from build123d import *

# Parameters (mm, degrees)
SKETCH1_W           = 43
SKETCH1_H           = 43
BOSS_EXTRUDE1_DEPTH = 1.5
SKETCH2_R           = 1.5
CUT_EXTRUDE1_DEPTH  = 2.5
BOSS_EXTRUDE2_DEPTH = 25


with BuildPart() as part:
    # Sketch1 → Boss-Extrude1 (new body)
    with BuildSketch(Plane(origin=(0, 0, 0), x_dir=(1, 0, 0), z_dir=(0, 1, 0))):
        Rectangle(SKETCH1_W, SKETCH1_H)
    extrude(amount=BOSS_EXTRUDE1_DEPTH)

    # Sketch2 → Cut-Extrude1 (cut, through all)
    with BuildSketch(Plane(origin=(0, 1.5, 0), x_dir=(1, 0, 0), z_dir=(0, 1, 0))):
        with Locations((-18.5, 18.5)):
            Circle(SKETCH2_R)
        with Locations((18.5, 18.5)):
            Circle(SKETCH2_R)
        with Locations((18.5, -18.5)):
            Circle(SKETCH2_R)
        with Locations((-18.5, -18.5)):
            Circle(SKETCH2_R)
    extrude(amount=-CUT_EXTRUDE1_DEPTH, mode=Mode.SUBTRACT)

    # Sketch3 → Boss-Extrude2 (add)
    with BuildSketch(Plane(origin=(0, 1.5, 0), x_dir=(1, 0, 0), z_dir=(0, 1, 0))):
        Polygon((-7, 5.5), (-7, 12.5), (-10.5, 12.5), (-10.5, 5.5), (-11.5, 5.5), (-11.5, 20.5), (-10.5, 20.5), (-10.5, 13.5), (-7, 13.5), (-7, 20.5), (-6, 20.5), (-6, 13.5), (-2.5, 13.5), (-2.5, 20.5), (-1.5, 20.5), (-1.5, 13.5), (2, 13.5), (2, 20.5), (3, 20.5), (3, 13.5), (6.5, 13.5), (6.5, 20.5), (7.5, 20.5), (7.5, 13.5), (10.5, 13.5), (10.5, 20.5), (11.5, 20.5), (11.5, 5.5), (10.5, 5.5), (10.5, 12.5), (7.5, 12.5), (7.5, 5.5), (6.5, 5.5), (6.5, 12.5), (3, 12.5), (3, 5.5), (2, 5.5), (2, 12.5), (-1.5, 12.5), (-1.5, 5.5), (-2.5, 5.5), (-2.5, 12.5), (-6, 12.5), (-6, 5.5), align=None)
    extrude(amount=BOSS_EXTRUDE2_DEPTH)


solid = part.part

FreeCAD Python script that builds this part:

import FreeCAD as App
import Part
import Sketcher

V = App.Vector

doc = App.newDocument("Part")
body = doc.addObject("PartDesign::Body", "Body")

sketch1 = body.newObject("Sketcher::SketchObject", "Sketch")
sketch1.AttachmentSupport = (doc.getObject("XZ_Plane"), [""])
sketch1.MapMode = "FlatFace"
sketch1.addGeometry(Part.LineSegment(V(-21.5, -21.5, 0), V(-21.5, 21.5, 0)), False)
sketch1.addGeometry(Part.LineSegment(V(-21.5, 21.5, 0), V(21.5, 21.5, 0)), False)
sketch1.addGeometry(Part.LineSegment(V(21.5, 21.5, 0), V(21.5, -21.5, 0)), False)
sketch1.addGeometry(Part.LineSegment(V(21.5, -21.5, 0), V(-21.5, -21.5, 0)), False)
sketch1.addConstraint(Sketcher.Constraint("Coincident", 0, 2, 1, 1))
sketch1.addConstraint(Sketcher.Constraint("Coincident", 1, 2, 2, 1))
sketch1.addConstraint(Sketcher.Constraint("Coincident", 2, 2, 3, 1))
sketch1.addConstraint(Sketcher.Constraint("Coincident", 3, 2, 0, 1))
sketch1.addConstraint(Sketcher.Constraint("Vertical", 0))
sketch1.addConstraint(Sketcher.Constraint("Horizontal", 1))
sketch1.addConstraint(Sketcher.Constraint("Vertical", 2))
sketch1.addConstraint(Sketcher.Constraint("Horizontal", 3))
sketch1.addConstraint(Sketcher.Constraint("Symmetric", 0, 2, 2, 2, -1, 1))
sketch1.addConstraint(Sketcher.Constraint("Equal", 3, 0))
sketch1.addConstraint(Sketcher.Constraint("DistanceX", 1, 1, 1, 2, 43.0))
pad1 = body.newObject("PartDesign::Pad", "Pad")
pad1.Profile = sketch1
pad1.Length = 1.5
pad1.Reversed = True

sketch2 = body.newObject("Sketcher::SketchObject", "Sketch001")
sketch2.AttachmentSupport = (doc.getObject("XZ_Plane"), [""])
sketch2.MapMode = "FlatFace"
sketch2.AttachmentOffset = App.Placement(V(0, 0, -1.5), App.Rotation())
sketch2.addGeometry(Part.Circle(V(-18.5, -18.5, 0), V(0, 0, 1), 1.5), False)
sketch2.addGeometry(Part.Circle(V(18.5, -18.5, 0), V(0, 0, 1), 1.5), False)
sketch2.addGeometry(Part.Circle(V(18.5, 18.5, 0), V(0, 0, 1), 1.5), False)
sketch2.addGeometry(Part.Circle(V(-18.5, 18.5, 0), V(0, 0, 1), 1.5), False)
sketch2.addConstraint(Sketcher.Constraint("Equal", 0, 1))
sketch2.addConstraint(Sketcher.Constraint("Equal", 1, 2))
sketch2.addConstraint(Sketcher.Constraint("Equal", 2, 3))
sketch2.addConstraint(Sketcher.Constraint("Symmetric", 0, 3, 2, 3, -1, 1))
sketch2.addConstraint(Sketcher.Constraint("Symmetric", 1, 3, 3, 3, -1, 1))
sketch2.addConstraint(Sketcher.Constraint("Symmetric", 0, 3, 1, 3, -2))
sketch2.addConstraint(Sketcher.Constraint("Diameter", 0, 3.0))
sketch2.addConstraint(Sketcher.Constraint("DistanceX", 0, 3, 1, 3, 37.0))
sketch2.addConstraint(Sketcher.Constraint("DistanceY", 1, 3, 2, 3, 37.0))
pocket1 = body.newObject("PartDesign::Pocket", "Pocket")
pocket1.Profile = sketch2
pocket1.Type = "ThroughAll"
pocket1.Reversed = True

sketch3 = body.newObject("Sketcher::SketchObject", "Sketch002")
sketch3.AttachmentSupport = (doc.getObject("XZ_Plane"), [""])
sketch3.MapMode = "FlatFace"
sketch3.AttachmentOffset = App.Placement(V(0, 0, -1.5), App.Rotation())
sketch3.addGeometry(Part.LineSegment(V(-7, -12.5, 0), V(-7, -5.5, 0)), False)
sketch3.addGeometry(Part.LineSegment(V(-7, -5.5, 0), V(-6, -5.5, 0)), False)
sketch3.addGeometry(Part.LineSegment(V(-6, -5.5, 0), V(-6, -12.5, 0)), False)
sketch3.addGeometry(Part.LineSegment(V(-6, -12.5, 0), V(-2.5, -12.5, 0)), False)
sketch3.addGeometry(Part.LineSegment(V(-2.5, -12.5, 0), V(-2.5, -5.5, 0)), False)
sketch3.addGeometry(Part.LineSegment(V(-2.5, -5.5, 0), V(-1.5, -5.5, 0)), False)
sketch3.addGeometry(Part.LineSegment(V(-1.5, -5.5, 0), V(-1.5, -12.5, 0)), False)
sketch3.addGeometry(Part.LineSegment(V(-1.5, -12.5, 0), V(2, -12.5, 0)), False)
sketch3.addGeometry(Part.LineSegment(V(2, -12.5, 0), V(2, -5.5, 0)), False)
sketch3.addGeometry(Part.LineSegment(V(2, -5.5, 0), V(3, -5.5, 0)), False)
sketch3.addGeometry(Part.LineSegment(V(3, -5.5, 0), V(3, -12.5, 0)), False)
sketch3.addGeometry(Part.LineSegment(V(3, -12.5, 0), V(6.5, -12.5, 0)), False)
sketch3.addGeometry(Part.LineSegment(V(6.5, -12.5, 0), V(6.5, -5.5, 0)), False)
sketch3.addGeometry(Part.LineSegment(V(6.5, -5.5, 0), V(7.5, -5.5, 0)), False)
sketch3.addGeometry(Part.LineSegment(V(7.5, -5.5, 0), V(7.5, -12.5, 0)), False)
sketch3.addGeometry(Part.LineSegment(V(7.5, -12.5, 0), V(10.5, -12.5, 0)), False)
sketch3.addGeometry(Part.LineSegment(V(10.5, -12.5, 0), V(10.5, -5.5, 0)), False)
sketch3.addGeometry(Part.LineSegment(V(10.5, -5.5, 0), V(11.5, -5.5, 0)), False)
sketch3.addGeometry(Part.LineSegment(V(11.5, -5.5, 0), V(11.5, -20.5, 0)), False)
sketch3.addGeometry(Part.LineSegment(V(11.5, -20.5, 0), V(10.5, -20.5, 0)), False)
sketch3.addGeometry(Part.LineSegment(V(10.5, -20.5, 0), V(10.5, -13.5, 0)), False)
sketch3.addGeometry(Part.LineSegment(V(10.5, -13.5, 0), V(7.5, -13.5, 0)), False)
sketch3.addGeometry(Part.LineSegment(V(7.5, -13.5, 0), V(7.5, -20.5, 0)), False)
sketch3.addGeometry(Part.LineSegment(V(7.5, -20.5, 0), V(6.5, -20.5, 0)), False)
sketch3.addGeometry(Part.LineSegment(V(6.5, -20.5, 0), V(6.5, -13.5, 0)), False)
sketch3.addGeometry(Part.LineSegment(V(6.5, -13.5, 0), V(3, -13.5, 0)), False)
sketch3.addGeometry(Part.LineSegment(V(3, -13.5, 0), V(3, -20.5, 0)), False)
sketch3.addGeometry(Part.LineSegment(V(3, -20.5, 0), V(2, -20.5, 0)), False)
sketch3.addGeometry(Part.LineSegment(V(2, -20.5, 0), V(2, -13.5, 0)), False)
sketch3.addGeometry(Part.LineSegment(V(2, -13.5, 0), V(-1.5, -13.5, 0)), False)
sketch3.addGeometry(Part.LineSegment(V(-1.5, -13.5, 0), V(-1.5, -20.5, 0)), False)
sketch3.addGeometry(Part.LineSegment(V(-1.5, -20.5, 0), V(-2.5, -20.5, 0)), False)
sketch3.addGeometry(Part.LineSegment(V(-2.5, -20.5, 0), V(-2.5, -13.5, 0)), False)
sketch3.addGeometry(Part.LineSegment(V(-2.5, -13.5, 0), V(-6, -13.5, 0)), False)
sketch3.addGeometry(Part.LineSegment(V(-6, -13.5, 0), V(-6, -20.5, 0)), False)
sketch3.addGeometry(Part.LineSegment(V(-6, -20.5, 0), V(-7, -20.5, 0)), False)
sketch3.addGeometry(Part.LineSegment(V(-7, -20.5, 0), V(-7, -13.5, 0)), False)
sketch3.addGeometry(Part.LineSegment(V(-7, -13.5, 0), V(-10.5, -13.5, 0)), False)
sketch3.addGeometry(Part.LineSegment(V(-10.5, -13.5, 0), V(-10.5, -20.5, 0)), False)
sketch3.addGeometry(Part.LineSegment(V(-10.5, -20.5, 0), V(-11.5, -20.5, 0)), False)
sketch3.addGeometry(Part.LineSegment(V(-11.5, -20.5, 0), V(-11.5, -5.5, 0)), False)
sketch3.addGeometry(Part.LineSegment(V(-11.5, -5.5, 0), V(-10.5, -5.5, 0)), False)
sketch3.addGeometry(Part.LineSegment(V(-10.5, -5.5, 0), V(-10.5, -12.5, 0)), False)
sketch3.addGeometry(Part.LineSegment(V(-10.5, -12.5, 0), V(-7, -12.5, 0)), False)
sketch3.addConstraint(Sketcher.Constraint("Coincident", 0, 2, 1, 1))
sketch3.addConstraint(Sketcher.Constraint("Coincident", 1, 2, 2, 1))
sketch3.addConstraint(Sketcher.Constraint("Coincident", 2, 2, 3, 1))
sketch3.addConstraint(Sketcher.Constraint("Coincident", 3, 2, 4, 1))
sketch3.addConstraint(Sketcher.Constraint("Coincident", 4, 2, 5, 1))
sketch3.addConstraint(Sketcher.Constraint("Coincident", 5, 2, 6, 1))
sketch3.addConstraint(Sketcher.Constraint("Coincident", 6, 2, 7, 1))
sketch3.addConstraint(Sketcher.Constraint("Coincident", 7, 2, 8, 1))
sketch3.addConstraint(Sketcher.Constraint("Coincident", 8, 2, 9, 1))
sketch3.addConstraint(Sketcher.Constraint("Coincident", 9, 2, 10, 1))
sketch3.addConstraint(Sketcher.Constraint("Coincident", 10, 2, 11, 1))
sketch3.addConstraint(Sketcher.Constraint("Coincident", 11, 2, 12, 1))
sketch3.addConstraint(Sketcher.Constraint("Coincident", 12, 2, 13, 1))
sketch3.addConstraint(Sketcher.Constraint("Coincident", 13, 2, 14, 1))
sketch3.addConstraint(Sketcher.Constraint("Coincident", 14, 2, 15, 1))
sketch3.addConstraint(Sketcher.Constraint("Coincident", 15, 2, 16, 1))
sketch3.addConstraint(Sketcher.Constraint("Coincident", 16, 2, 17, 1))
sketch3.addConstraint(Sketcher.Constraint("Coincident", 17, 2, 18, 1))
sketch3.addConstraint(Sketcher.Constraint("Coincident", 18, 2, 19, 1))
sketch3.addConstraint(Sketcher.Constraint("Coincident", 19, 2, 20, 1))
sketch3.addConstraint(Sketcher.Constraint("Coincident", 20, 2, 21, 1))
sketch3.addConstraint(Sketcher.Constraint("Coincident", 21, 2, 22, 1))
sketch3.addConstraint(Sketcher.Constraint("Coincident", 22, 2, 23, 1))
sketch3.addConstraint(Sketcher.Constraint("Coincident", 23, 2, 24, 1))
sketch3.addConstraint(Sketcher.Constraint("Coincident", 24, 2, 25, 1))
sketch3.addConstraint(Sketcher.Constraint("Coincident", 25, 2, 26, 1))
sketch3.addConstraint(Sketcher.Constraint("Coincident", 26, 2, 27, 1))
sketch3.addConstraint(Sketcher.Constraint("Coincident", 27, 2, 28, 1))
sketch3.addConstraint(Sketcher.Constraint("Coincident", 28, 2, 29, 1))
sketch3.addConstraint(Sketcher.Constraint("Coincident", 29, 2, 30, 1))
sketch3.addConstraint(Sketcher.Constraint("Coincident", 30, 2, 31, 1))
sketch3.addConstraint(Sketcher.Constraint("Coincident", 31, 2, 32, 1))
sketch3.addConstraint(Sketcher.Constraint("Coincident", 32, 2, 33, 1))
sketch3.addConstraint(Sketcher.Constraint("Coincident", 33, 2, 34, 1))
sketch3.addConstraint(Sketcher.Constraint("Coincident", 34, 2, 35, 1))
sketch3.addConstraint(Sketcher.Constraint("Coincident", 35, 2, 36, 1))
sketch3.addConstraint(Sketcher.Constraint("Coincident", 36, 2, 37, 1))
sketch3.addConstraint(Sketcher.Constraint("Coincident", 37, 2, 38, 1))
sketch3.addConstraint(Sketcher.Constraint("Coincident", 38, 2, 39, 1))
sketch3.addConstraint(Sketcher.Constraint("Coincident", 39, 2, 40, 1))
sketch3.addConstraint(Sketcher.Constraint("Coincident", 40, 2, 41, 1))
sketch3.addConstraint(Sketcher.Constraint("Coincident", 41, 2, 42, 1))
sketch3.addConstraint(Sketcher.Constraint("Coincident", 42, 2, 43, 1))
sketch3.addConstraint(Sketcher.Constraint("Coincident", 43, 2, 0, 1))
sketch3.addConstraint(Sketcher.Constraint("Vertical", 0))
sketch3.addConstraint(Sketcher.Constraint("Horizontal", 1))
sketch3.addConstraint(Sketcher.Constraint("Vertical", 2))
sketch3.addConstraint(Sketcher.Constraint("Horizontal", 3))
sketch3.addConstraint(Sketcher.Constraint("Vertical", 4))
sketch3.addConstraint(Sketcher.Constraint("Horizontal", 5))
sketch3.addConstraint(Sketcher.Constraint("Vertical", 6))
sketch3.addConstraint(Sketcher.Constraint("Horizontal", 7))
sketch3.addConstraint(Sketcher.Constraint("Vertical", 8))
sketch3.addConstraint(Sketcher.Constraint("Horizontal", 9))
sketch3.addConstraint(Sketcher.Constraint("Vertical", 10))
sketch3.addConstraint(Sketcher.Constraint("Horizontal", 11))
sketch3.addConstraint(Sketcher.Constraint("Vertical", 12))
sketch3.addConstraint(Sketcher.Constraint("Horizontal", 13))
sketch3.addConstraint(Sketcher.Constraint("Vertical", 14))
sketch3.addConstraint(Sketcher.Constraint("Horizontal", 15))
sketch3.addConstraint(Sketcher.Constraint("Vertical", 16))
sketch3.addConstraint(Sketcher.Constraint("Horizontal", 17))
sketch3.addConstraint(Sketcher.Constraint("Vertical", 18))
sketch3.addConstraint(Sketcher.Constraint("Horizontal", 19))
sketch3.addConstraint(Sketcher.Constraint("Vertical", 20))
sketch3.addConstraint(Sketcher.Constraint("Horizontal", 21))
sketch3.addConstraint(Sketcher.Constraint("Vertical", 22))
sketch3.addConstraint(Sketcher.Constraint("Horizontal", 23))
sketch3.addConstraint(Sketcher.Constraint("Vertical", 24))
sketch3.addConstraint(Sketcher.Constraint("Horizontal", 25))
sketch3.addConstraint(Sketcher.Constraint("Vertical", 26))
sketch3.addConstraint(Sketcher.Constraint("Horizontal", 27))
sketch3.addConstraint(Sketcher.Constraint("Vertical", 28))
sketch3.addConstraint(Sketcher.Constraint("Horizontal", 29))
sketch3.addConstraint(Sketcher.Constraint("Vertical", 30))
sketch3.addConstraint(Sketcher.Constraint("Horizontal", 31))
sketch3.addConstraint(Sketcher.Constraint("Vertical", 32))
sketch3.addConstraint(Sketcher.Constraint("Horizontal", 33))
sketch3.addConstraint(Sketcher.Constraint("Vertical", 34))
sketch3.addConstraint(Sketcher.Constraint("Horizontal", 35))
sketch3.addConstraint(Sketcher.Constraint("Vertical", 36))
sketch3.addConstraint(Sketcher.Constraint("Horizontal", 37))
sketch3.addConstraint(Sketcher.Constraint("Vertical", 38))
sketch3.addConstraint(Sketcher.Constraint("Horizontal", 39))
sketch3.addConstraint(Sketcher.Constraint("Vertical", 40))
sketch3.addConstraint(Sketcher.Constraint("Horizontal", 41))
sketch3.addConstraint(Sketcher.Constraint("Vertical", 42))
sketch3.addConstraint(Sketcher.Constraint("Horizontal", 43))
sketch3.addConstraint(Sketcher.Constraint("Symmetric", 20, 2, 37, 2, -2))
sketch3.addConstraint(Sketcher.Constraint("Symmetric", 18, 2, 39, 2, -2))
sketch3.addConstraint(Sketcher.Constraint("Symmetric", 16, 2, 41, 2, -2))
sketch3.addConstraint(Sketcher.Constraint("Horizontal", 1, 2, 4, 2))
sketch3.addConstraint(Sketcher.Constraint("Horizontal", 3, 2, 6, 2))
sketch3.addConstraint(Sketcher.Constraint("Horizontal", 5, 2, 8, 2))
sketch3.addConstraint(Sketcher.Constraint("Horizontal", 7, 2, 10, 2))
sketch3.addConstraint(Sketcher.Constraint("Horizontal", 9, 2, 12, 2))
sketch3.addConstraint(Sketcher.Constraint("Horizontal", 11, 2, 14, 2))
sketch3.addConstraint(Sketcher.Constraint("Horizontal", 13, 2, 16, 2))
sketch3.addConstraint(Sketcher.Constraint("Horizontal", 19, 2, 22, 2))
sketch3.addConstraint(Sketcher.Constraint("Horizontal", 21, 2, 24, 2))
sketch3.addConstraint(Sketcher.Constraint("Horizontal", 23, 2, 26, 2))
sketch3.addConstraint(Sketcher.Constraint("Horizontal", 25, 2, 28, 2))
sketch3.addConstraint(Sketcher.Constraint("Horizontal", 27, 2, 30, 2))
sketch3.addConstraint(Sketcher.Constraint("Horizontal", 29, 2, 32, 2))
sketch3.addConstraint(Sketcher.Constraint("Horizontal", 31, 2, 34, 2))
sketch3.addConstraint(Sketcher.Constraint("Horizontal", 15, 2, 42, 2))
sketch3.addConstraint(Sketcher.Constraint("Vertical", 16, 2, 19, 2))
sketch3.addConstraint(Sketcher.Constraint("Vertical", 14, 2, 21, 2))
sketch3.addConstraint(Sketcher.Constraint("Vertical", 12, 2, 23, 2))
sketch3.addConstraint(Sketcher.Constraint("Vertical", 10, 2, 25, 2))
sketch3.addConstraint(Sketcher.Constraint("Vertical", 8, 2, 27, 2))
sketch3.addConstraint(Sketcher.Constraint("Vertical", 6, 2, 29, 2))
sketch3.addConstraint(Sketcher.Constraint("Vertical", 4, 2, 31, 2))
sketch3.addConstraint(Sketcher.Constraint("Vertical", 2, 2, 33, 2))
sketch3.addConstraint(Sketcher.Constraint("Vertical", 0, 2, 35, 2))
sketch3.addConstraint(Sketcher.Constraint("Equal", 1, 5))
sketch3.addConstraint(Sketcher.Constraint("Equal", 3, 7))
sketch3.addConstraint(Sketcher.Constraint("Equal", 5, 9))
sketch3.addConstraint(Sketcher.Constraint("Equal", 7, 11))
sketch3.addConstraint(Sketcher.Constraint("Equal", 9, 13))
sketch3.addConstraint(Sketcher.Constraint("Equal", 13, 17))
sketch3.addConstraint(Sketcher.Constraint("Equal", 33, 37))
sketch3.addConstraint(Sketcher.Constraint("Equal", 16, 20))
sketch3.addConstraint(Sketcher.Constraint("DistanceX", 1, 1, 1, 2, 1.0))
sketch3.addConstraint(Sketcher.Constraint("DistanceX", 15, 1, 15, 2, 3.0))
sketch3.addConstraint(Sketcher.Constraint("DistanceY", 0, 1, 0, 2, 7.0))
sketch3.addConstraint(Sketcher.Constraint("DistanceY", 18, 2, 18, 1, 15.0))
sketch3.addConstraint(Sketcher.Constraint("DistanceX", 3, 1, 3, 2, 3.5))
sketch3.addConstraint(Sketcher.Constraint("DistanceY", 0, 2, -1, 1, 5.5))
pad2 = body.newObject("PartDesign::Pad", "Pad001")
pad2.Profile = sketch3
pad2.Length = 25
pad2.Reversed = True

doc.recompute()
